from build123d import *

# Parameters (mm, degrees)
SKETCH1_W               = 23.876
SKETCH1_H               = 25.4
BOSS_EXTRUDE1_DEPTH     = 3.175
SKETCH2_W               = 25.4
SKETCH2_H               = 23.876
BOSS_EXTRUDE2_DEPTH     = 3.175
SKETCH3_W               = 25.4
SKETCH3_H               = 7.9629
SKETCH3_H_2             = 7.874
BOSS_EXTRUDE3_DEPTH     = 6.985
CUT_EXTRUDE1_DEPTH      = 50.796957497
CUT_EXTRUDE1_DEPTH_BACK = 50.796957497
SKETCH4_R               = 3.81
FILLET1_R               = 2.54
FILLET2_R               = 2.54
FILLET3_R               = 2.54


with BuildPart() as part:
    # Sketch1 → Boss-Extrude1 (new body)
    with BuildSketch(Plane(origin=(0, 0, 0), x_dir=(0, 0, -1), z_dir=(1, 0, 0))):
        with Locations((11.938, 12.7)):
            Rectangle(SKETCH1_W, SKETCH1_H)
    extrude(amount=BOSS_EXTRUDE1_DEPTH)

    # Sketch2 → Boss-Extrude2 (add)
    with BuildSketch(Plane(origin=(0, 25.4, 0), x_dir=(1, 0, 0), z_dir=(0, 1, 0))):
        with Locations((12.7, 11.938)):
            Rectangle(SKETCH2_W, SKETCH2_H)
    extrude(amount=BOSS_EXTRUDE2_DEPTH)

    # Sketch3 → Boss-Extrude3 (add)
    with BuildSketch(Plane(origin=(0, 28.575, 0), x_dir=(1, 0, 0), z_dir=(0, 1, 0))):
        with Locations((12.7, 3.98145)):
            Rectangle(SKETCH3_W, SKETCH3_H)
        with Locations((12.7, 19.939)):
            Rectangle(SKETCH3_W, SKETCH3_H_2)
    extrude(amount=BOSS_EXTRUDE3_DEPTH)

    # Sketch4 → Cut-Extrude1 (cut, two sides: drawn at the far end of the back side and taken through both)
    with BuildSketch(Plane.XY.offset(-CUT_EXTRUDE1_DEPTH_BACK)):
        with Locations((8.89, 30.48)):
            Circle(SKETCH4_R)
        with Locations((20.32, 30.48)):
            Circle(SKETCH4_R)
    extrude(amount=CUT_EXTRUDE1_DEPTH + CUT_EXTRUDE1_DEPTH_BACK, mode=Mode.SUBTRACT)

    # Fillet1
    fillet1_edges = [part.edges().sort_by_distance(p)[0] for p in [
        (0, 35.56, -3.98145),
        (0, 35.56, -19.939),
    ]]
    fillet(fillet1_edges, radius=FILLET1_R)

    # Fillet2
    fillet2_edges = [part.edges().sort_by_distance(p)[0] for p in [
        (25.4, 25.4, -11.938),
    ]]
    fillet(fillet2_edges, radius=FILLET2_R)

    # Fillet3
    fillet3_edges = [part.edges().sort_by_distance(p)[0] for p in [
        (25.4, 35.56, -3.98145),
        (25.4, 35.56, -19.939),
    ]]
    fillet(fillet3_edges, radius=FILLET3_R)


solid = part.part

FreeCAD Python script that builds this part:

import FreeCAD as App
import Part
import Sketcher

V = App.Vector
Q = App.Units.Quantity


def edges_at(feature, points):
    """Names of the edges that pass closest to the given points."""
    edges = feature.Shape.Edges
    near = lambda p: min(range(len(edges)), key=lambda i: edges[i].distToShape(Part.Vertex(*p))[0])
    return sorted({f"Edge{near(p) + 1}" for p in points})


def add_polygon(sketch, points):
    """Adds a closed chain of lines whose ends are joined by coincident constraints."""
    first, n = sketch.GeometryCount, len(points)
    for a, b in zip(points, points[1:] + points[:1]):
        sketch.addGeometry(Part.LineSegment(App.Vector(*a, 0), App.Vector(*b, 0)), False)
    for i in range(n):
        sketch.addConstraint(Sketcher.Constraint("Coincident", first + i, 2, first + (i + 1) % n, 1))

doc = App.newDocument("Part")
params = doc.addObject("Spreadsheet::Sheet", "Params")
for row, (alias, value) in enumerate([
    ("sketch1_width", "1 in"),
    ("sketch1_height", "0.94 in"),
    ("pad1_length", "0.125 in"),
    ("sketch2_width", "1 in"),
    ("sketch2_height", "0.94 in"),
    ("pad2_length", "0.125 in"),
    ("sketch3_width", "1 in"),
    ("sketch3_height", "0.31 in"),
    ("pad3_length", "0.275 in"),
    ("sketch4_diameter", "0.3 in"),
    ("fillet_radius", "0.1 in"),
    ("fillet2_radius", "0.1 in"),
    ("fillet3_radius", "0.1 in"),
], start=1):
    params.set(f"A{row}", alias)
    params.set(f"B{row}", "=" + value)
    params.setAlias(f"B{row}", alias)

body = doc.addObject("PartDesign::Body", "Body")

# Sketch on YZ plane
sketch1 = body.newObject("Sketcher::SketchObject", "Sketch")
sketch1.AttachmentSupport = (doc.getObject("YZ_Plane"), [""])
sketch1.MapMode = "FlatFace"
add_polygon(sketch1, [(25.4, 0), (0, 0), (0, -23.876), (25.4, -23.876)])  # lines 0-3
sketch1.addConstraint([
    Sketcher.Constraint("Horizontal", 0),
    Sketcher.Constraint("Vertical", 1),
    Sketcher.Constraint("Horizontal", 2),
    Sketcher.Constraint("Vertical", 3),
    Sketcher.Constraint("Coincident", 0, 2, -1, 1),
    Sketcher.Constraint("DistanceX", 0, 2, 0, 1, Q("1 in")),
    Sketcher.Constraint("DistanceY", 1, 2, 1, 1, Q("0.94 in")),
])
sketch1.setExpression("Constraints[9]", "Params.sketch1_width")
sketch1.setExpression("Constraints[10]", "Params.sketch1_height")
pad1 = body.newObject("PartDesign::Pad", "Pad")
pad1.Profile = sketch1
pad1.setExpression("Length", "Params.pad1_length")

# Sketch on XZ plane
sketch2 = body.newObject("Sketcher::SketchObject", "Sketch001")
sketch2.AttachmentSupport = (doc.getObject("XZ_Plane"), [""])
sketch2.MapMode = "FlatFace"
sketch2.AttachmentOffset = App.Placement(V(0, 0, -1 * 25.4), App.Rotation())
add_polygon(sketch2, [(0, -23.876), (0, 0), (25.4, 0), (25.4, -23.876)])  # lines 0-3
sketch2.addConstraint([
    Sketcher.Constraint("Vertical", 0),
    Sketcher.Constraint("Horizontal", 1),
    Sketcher.Constraint("Vertical", 2),
    Sketcher.Constraint("Horizontal", 3),
    Sketcher.Constraint("Coincident", 0, 2, -1, 1),
    Sketcher.Constraint("DistanceX", 1, 1, 1, 2, Q("1 in")),
    Sketcher.Constraint("DistanceY", 0, 1, 0, 2, Q("0.94 in")),
])
sketch2.setExpression("Constraints[9]", "Params.sketch2_width")
sketch2.setExpression("Constraints[10]", "Params.sketch2_height")
pad2 = body.newObject("PartDesign::Pad", "Pad001")
pad2.Profile = sketch2
pad2.setExpression("Length", "Params.pad2_length")
pad2.Reversed = True

# Sketch on XZ plane
sketch3 = body.newObject("Sketcher::SketchObject", "Sketch002")
sketch3.AttachmentSupport = (doc.getObject("XZ_Plane"), [""])
sketch3.MapMode = "FlatFace"
sketch3.AttachmentOffset = App.Placement(V(0, 0, -1.125 * 25.4), App.Rotation())
add_polygon(sketch3, [(0, -7.9629), (0, 0), (25.4, 0), (25.4, -7.9629)])  # lines 0-3
add_polygon(sketch3, [(0, -23.876), (0, -16.002), (25.4, -16.002), (25.4, -23.876)])  # lines 4-7
sketch3.addConstraint([
    Sketcher.Constraint("Vertical", 0),
    Sketcher.Constraint("Horizontal", 1),
    Sketcher.Constraint("Vertical", 2),
    Sketcher.Constraint("Horizontal", 3),
    Sketcher.Constraint("Vertical", 4),
    Sketcher.Constraint("Horizontal", 5),
    Sketcher.Constraint("Vertical", 6),
    Sketcher.Constraint("Horizontal", 7),
    Sketcher.Constraint("Coincident", 0, 2, -1, 1),
    Sketcher.Constraint("PointOnObject", 4, 2, -2),
    Sketcher.Constraint("Vertical", 2, 2, 5, 2),
    Sketcher.Constraint("DistanceX", 1, 1, 1, 2, Q("1 in")),
    Sketcher.Constraint("DistanceY", 4, 1, 4, 2, Q("0.31 in")),
    Sketcher.Constraint("DistanceY", 4, 2, -1, 1, Q("0.63 in")),
    Sketcher.Constraint("DistanceY", 0, 1, 0, 2, Q("0.3135 in")),
])
sketch3.setExpression("Constraints[19]", "Params.sketch3_width")
sketch3.setExpression("Constraints[20]", "Params.sketch3_height")
pad3 = body.newObject("PartDesign::Pad", "Pad002")
pad3.Profile = sketch3
pad3.setExpression("Length", "Params.pad3_length")
pad3.Reversed = True

# Sketch on XY plane
sketch4 = body.newObject("Sketcher::SketchObject", "Sketch003")
sketch4.AttachmentSupport = (doc.getObject("XY_Plane"), [""])
sketch4.MapMode = "FlatFace"
sketch4.addGeometry([
    Part.Circle(V(8.89, 30.48, 0), V(0, 0, 1), 3.81),
    Part.Circle(V(20.32, 30.48, 0), V(0, 0, 1), 3.81),
], False)
sketch4.addConstraint([
    Sketcher.Constraint("Equal", 0, 1),
    Sketcher.Constraint("Horizontal", 0, 3, 1, 3),
    Sketcher.Constraint("Diameter", 0, Q("0.3 in")),
    Sketcher.Constraint("DistanceY", -1, 1, 0, 3, Q("1.2 in")),
    Sketcher.Constraint("DistanceX", -1, 1, 1, 3, Q("0.8 in")),
    Sketcher.Constraint("DistanceX", -1, 1, 0, 3, Q("0.35 in")),
])
sketch4.setExpression("Constraints[2]", "Params.sketch4_diameter")
pocket1 = body.newObject("PartDesign::Pocket", "Pocket")
pocket1.Profile = sketch4
pocket1.Type = "ThroughAll"
pocket1.Midplane = True
doc.recompute()

fillet = body.newObject("PartDesign::Fillet", "Fillet")
fillet.Base = (pocket1, edges_at(pocket1, [(0, 35.56, -3.981), (0, 35.56, -19.939)]))
fillet.setExpression("Radius", "Params.fillet_radius")
doc.recompute()

fillet2 = body.newObject("PartDesign::Fillet", "Fillet001")
fillet2.Base = (fillet, edges_at(fillet, [(25.4, 25.4, -11.938)]))
fillet2.setExpression("Radius", "Params.fillet2_radius")
doc.recompute()

fillet3 = body.newObject("PartDesign::Fillet", "Fillet002")
fillet3.Base = (fillet2, edges_at(fillet2, [(25.4, 35.56, -3.981), (25.4, 35.56, -19.939)]))
fillet3.setExpression("Radius", "Params.fillet3_radius")

doc.recompute()
